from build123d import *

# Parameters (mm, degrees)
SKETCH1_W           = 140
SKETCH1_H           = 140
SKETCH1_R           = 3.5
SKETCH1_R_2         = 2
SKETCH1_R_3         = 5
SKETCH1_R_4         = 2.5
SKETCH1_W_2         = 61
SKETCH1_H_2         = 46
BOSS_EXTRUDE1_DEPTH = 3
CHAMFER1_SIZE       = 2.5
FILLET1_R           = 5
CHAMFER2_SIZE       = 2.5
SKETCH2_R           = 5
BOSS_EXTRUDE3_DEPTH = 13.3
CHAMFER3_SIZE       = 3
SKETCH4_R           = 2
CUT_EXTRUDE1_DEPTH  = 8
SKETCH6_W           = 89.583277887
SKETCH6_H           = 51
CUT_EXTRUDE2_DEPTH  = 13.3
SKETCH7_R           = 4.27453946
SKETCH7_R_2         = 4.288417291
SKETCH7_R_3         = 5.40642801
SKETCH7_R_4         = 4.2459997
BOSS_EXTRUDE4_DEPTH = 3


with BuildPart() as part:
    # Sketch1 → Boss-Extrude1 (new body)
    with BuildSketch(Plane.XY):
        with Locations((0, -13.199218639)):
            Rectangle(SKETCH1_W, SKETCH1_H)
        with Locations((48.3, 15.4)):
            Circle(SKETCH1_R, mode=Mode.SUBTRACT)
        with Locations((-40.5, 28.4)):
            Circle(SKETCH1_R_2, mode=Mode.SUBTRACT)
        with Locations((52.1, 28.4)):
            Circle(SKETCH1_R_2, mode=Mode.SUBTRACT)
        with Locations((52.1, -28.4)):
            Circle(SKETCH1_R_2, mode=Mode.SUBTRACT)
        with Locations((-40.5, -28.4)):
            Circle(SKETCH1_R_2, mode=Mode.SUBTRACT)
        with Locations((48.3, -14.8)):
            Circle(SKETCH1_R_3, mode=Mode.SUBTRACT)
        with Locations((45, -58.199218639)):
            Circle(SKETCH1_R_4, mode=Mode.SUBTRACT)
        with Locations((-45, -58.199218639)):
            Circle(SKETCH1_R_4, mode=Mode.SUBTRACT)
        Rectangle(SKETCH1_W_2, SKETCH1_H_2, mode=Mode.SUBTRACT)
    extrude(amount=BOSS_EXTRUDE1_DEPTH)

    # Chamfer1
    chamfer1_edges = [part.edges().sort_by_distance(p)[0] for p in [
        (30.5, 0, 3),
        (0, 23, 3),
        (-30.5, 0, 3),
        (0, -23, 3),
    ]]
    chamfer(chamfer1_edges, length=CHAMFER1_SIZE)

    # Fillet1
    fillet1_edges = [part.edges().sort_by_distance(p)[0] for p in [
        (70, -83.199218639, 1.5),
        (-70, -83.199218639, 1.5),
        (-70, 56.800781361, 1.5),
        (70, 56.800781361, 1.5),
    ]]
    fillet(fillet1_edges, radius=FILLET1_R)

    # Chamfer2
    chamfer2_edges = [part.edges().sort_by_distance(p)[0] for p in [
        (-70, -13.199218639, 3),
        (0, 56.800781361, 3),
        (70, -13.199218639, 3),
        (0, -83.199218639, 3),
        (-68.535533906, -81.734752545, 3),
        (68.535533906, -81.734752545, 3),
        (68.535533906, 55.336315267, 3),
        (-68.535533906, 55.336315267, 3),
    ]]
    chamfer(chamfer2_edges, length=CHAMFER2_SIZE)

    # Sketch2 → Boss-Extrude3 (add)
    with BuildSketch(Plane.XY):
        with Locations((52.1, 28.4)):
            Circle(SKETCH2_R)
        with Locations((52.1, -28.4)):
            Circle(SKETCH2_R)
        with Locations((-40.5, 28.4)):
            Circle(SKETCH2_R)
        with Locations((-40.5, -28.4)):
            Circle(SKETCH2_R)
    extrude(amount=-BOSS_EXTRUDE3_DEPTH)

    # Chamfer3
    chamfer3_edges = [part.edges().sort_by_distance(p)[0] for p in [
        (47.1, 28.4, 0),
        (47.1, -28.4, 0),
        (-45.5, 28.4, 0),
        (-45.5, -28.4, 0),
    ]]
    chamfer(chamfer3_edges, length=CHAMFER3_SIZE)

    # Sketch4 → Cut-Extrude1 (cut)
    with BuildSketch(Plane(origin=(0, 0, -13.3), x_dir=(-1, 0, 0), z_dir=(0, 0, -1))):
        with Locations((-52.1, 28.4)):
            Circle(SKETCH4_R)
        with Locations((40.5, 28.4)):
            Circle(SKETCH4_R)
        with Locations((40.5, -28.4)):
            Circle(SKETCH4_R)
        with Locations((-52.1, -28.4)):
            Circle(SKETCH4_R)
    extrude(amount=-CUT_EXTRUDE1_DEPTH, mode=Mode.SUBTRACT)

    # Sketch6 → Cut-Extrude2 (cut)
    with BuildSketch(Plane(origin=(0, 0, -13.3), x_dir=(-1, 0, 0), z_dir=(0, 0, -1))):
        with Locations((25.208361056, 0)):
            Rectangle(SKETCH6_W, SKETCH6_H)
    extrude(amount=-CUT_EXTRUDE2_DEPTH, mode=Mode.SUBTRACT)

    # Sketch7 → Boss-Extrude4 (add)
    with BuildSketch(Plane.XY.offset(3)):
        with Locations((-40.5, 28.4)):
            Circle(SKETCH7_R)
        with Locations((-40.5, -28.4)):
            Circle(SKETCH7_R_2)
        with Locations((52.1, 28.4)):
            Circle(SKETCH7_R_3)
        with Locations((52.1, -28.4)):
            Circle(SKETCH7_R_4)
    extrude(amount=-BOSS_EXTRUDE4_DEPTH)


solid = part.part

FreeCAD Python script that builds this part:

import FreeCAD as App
import Part
import Sketcher

V = App.Vector


def edges_at(feature, points):
    """Names of the edges that pass closest to the given points."""
    edges = feature.Shape.Edges
    near = lambda p: min(range(len(edges)), key=lambda i: edges[i].distToShape(Part.Vertex(*p))[0])
    return sorted({f"Edge{near(p) + 1}" for p in points})


def add_polygon(sketch, points):
    """Adds a closed chain of lines whose ends are joined by coincident constraints."""
    first, n = sketch.GeometryCount, len(points)
    for a, b in zip(points, points[1:] + points[:1]):
        sketch.addGeometry(Part.LineSegment(App.Vector(*a, 0), App.Vector(*b, 0)), False)
    for i in range(n):
        sketch.addConstraint(Sketcher.Constraint("Coincident", first + i, 2, first + (i + 1) % n, 1))

doc = App.newDocument("Part")
body = doc.addObject("PartDesign::Body", "Body")

sketch1 = body.newObject("Sketcher::SketchObject", "Sketch")
sketch1.AttachmentSupport = (doc.getObject("XY_Plane"), [""])
sketch1.MapMode = "FlatFace"
add_polygon(sketch1, [(-70, 56.8), (-70, -83.2), (70, -83.2), (70, 56.8)])
sketch1.addGeometry(Part.Circle(V(-45, -58.2, 0), V(0, 0, 1), 2.5), False)
sketch1.addGeometry(Part.Circle(V(-40.5, -28.4, 0), V(0, 0, 1), 2), False)
sketch1.addGeometry(Part.Circle(V(45, -58.2, 0), V(0, 0, 1), 2.5), False)
sketch1.addGeometry(Part.Circle(V(52.1, -28.4, 0), V(0, 0, 1), 2), False)
add_polygon(sketch1, [(30.5, -23), (-30.5, -23), (-30.5, 23), (30.5, 23)])
sketch1.addGeometry(Part.Circle(V(-40.5, 28.4, 0), V(0, 0, 1), 2), False)
sketch1.addGeometry(Part.Circle(V(48.3, -14.8, 0), V(0, 0, 1), 5), False)
sketch1.addGeometry(Part.Circle(V(48.3, 15.4, 0), V(0, 0, 1), 3.5), False)
sketch1.addGeometry(Part.Circle(V(52.1, 28.4, 0), V(0, 0, 1), 2), False)
sketch1.addConstraint(Sketcher.Constraint("Vertical", 0))
sketch1.addConstraint(Sketcher.Constraint("Horizontal", 1))
sketch1.addConstraint(Sketcher.Constraint("Vertical", 2))
sketch1.addConstraint(Sketcher.Constraint("Horizontal", 3))
sketch1.addConstraint(Sketcher.Constraint("Horizontal", 8))
sketch1.addConstraint(Sketcher.Constraint("Vertical", 9))
sketch1.addConstraint(Sketcher.Constraint("Horizontal", 10))
sketch1.addConstraint(Sketcher.Constraint("Vertical", 11))
sketch1.addConstraint(Sketcher.Constraint("Equal", 4, 6))
sketch1.addConstraint(Sketcher.Constraint("Equal", 5, 7))
sketch1.addConstraint(Sketcher.Constraint("Equal", 7, 12))
sketch1.addConstraint(Sketcher.Constraint("Equal", 12, 15))
sketch1.addConstraint(Sketcher.Constraint("Symmetric", 8, 2, 10, 2, -1, 1))
sketch1.addConstraint(Sketcher.Constraint("Symmetric", 4, 3, 6, 3, -2))
sketch1.addConstraint(Sketcher.Constraint("Symmetric", 5, 3, 12, 3, -1))
sketch1.addConstraint(Sketcher.Constraint("Symmetric", 7, 3, 15, 3, -1))
sketch1.addConstraint(Sketcher.Constraint("Horizontal", 5, 3, 7, 3))
sketch1.addConstraint(Sketcher.Constraint("Vertical", 13, 3, 14, 3))
sketch1.addConstraint(Sketcher.Constraint("Equal", 3, 0))
sketch1.addConstraint(Sketcher.Constraint("Diameter", 4, 5.0))
sketch1.addConstraint(Sketcher.Constraint("Diameter", 5, 4.0))
sketch1.addConstraint(Sketcher.Constraint("Diameter", 13, 10.0))
sketch1.addConstraint(Sketcher.Constraint("Diameter", 14, 7.0))
sketch1.addConstraint(Sketcher.Constraint("DistanceX", 1, 1, 1, 2, 140.0))
sketch1.addConstraint(Sketcher.Constraint("DistanceX", 8, 2, 8, 1, 61.0))
sketch1.addConstraint(Sketcher.Constraint("DistanceY", 9, 1, 9, 2, 46.0))
sketch1.addConstraint(Sketcher.Constraint("DistanceX", 4, 3, -1, 1, 45.0))
sketch1.addConstraint(Sketcher.Constraint("DistanceX", 0, 2, -1, 1, 70.0))
sketch1.addConstraint(Sketcher.Constraint("DistanceY", 14, 3, 12, 3, 13.0))
sketch1.addConstraint(Sketcher.Constraint("DistanceY", 0, 2, 4, 3, 25.0))
sketch1.addConstraint(Sketcher.Constraint("DistanceX", 5, 3, 8, 2, 10.0))
sketch1.addConstraint(Sketcher.Constraint("DistanceY", 5, 3, -1, 1, 28.4))
sketch1.addConstraint(Sketcher.Constraint("DistanceX", -1, 1, 7, 3, 52.1))
sketch1.addConstraint(Sketcher.Constraint("DistanceX", -1, 1, 13, 3, 48.3))
sketch1.addConstraint(Sketcher.Constraint("DistanceY", 13, 3, -1, 1, 14.8))
sketch1.addConstraint(Sketcher.Constraint("DistanceY", 4, 3, -1, 1, 58.199219))
pad1 = body.newObject("PartDesign::Pad", "Pad")
pad1.Profile = sketch1
pad1.Length = 3
doc.recompute()

chamfer = body.newObject("PartDesign::Chamfer", "Chamfer")
chamfer.Base = (pad1, edges_at(pad1, [
    (30.5, 0, 3),
    (0, 23, 3),
    (-30.5, 0, 3),
    (0, -23, 3),
]))
chamfer.Size = 2.5
doc.recompute()

fillet = body.newObject("PartDesign::Fillet", "Fillet")
fillet.Base = (chamfer, edges_at(chamfer, [
    (70, -83.199, 1.5),
    (-70, -83.199, 1.5),
    (-70, 56.801, 1.5),
    (70, 56.801, 1.5),
]))
fillet.Radius = 5
doc.recompute()

chamfer2 = body.newObject("PartDesign::Chamfer", "Chamfer001")
chamfer2.Base = (fillet, edges_at(fillet, [
    (-70, -13.199, 3),
    (0, 56.801, 3),
    (70, -13.199, 3),
    (0, -83.199, 3),
    (-68.536, -81.735, 3),
    (68.536, -81.735, 3),
    (68.536, 55.336, 3),
    (-68.536, 55.336, 3),
]))
chamfer2.Size = 2.5

sketch2 = body.newObject("Sketcher::SketchObject", "Sketch001")
sketch2.AttachmentSupport = (doc.getObject("XY_Plane"), [""])
sketch2.MapMode = "FlatFace"
sketch2.addGeometry(Part.Circle(V(52, 28, 0), V(0, 0, 1), 5), False)
sketch2.addGeometry(Part.Circle(V(52, -28, 0), V(0, 0, 1), 5), False)
sketch2.addGeometry(Part.Circle(V(-40, 28, 0), V(0, 0, 1), 5), False)
sketch2.addGeometry(Part.Circle(V(-40, -28, 0), V(0, 0, 1), 5), False)
sketch2.addConstraint(Sketcher.Constraint("Equal", 0, 1))
sketch2.addConstraint(Sketcher.Constraint("Equal", 1, 2))
sketch2.addConstraint(Sketcher.Constraint("Equal", 2, 3))
sketch2.addConstraint(Sketcher.Constraint("Symmetric", 0, 3, 1, 3, -1))
sketch2.addConstraint(Sketcher.Constraint("Symmetric", 2, 3, 3, 3, -1))
sketch2.addConstraint(Sketcher.Constraint("Horizontal", 0, 3, 2, 3))
sketch2.addConstraint(Sketcher.Constraint("Diameter", 0, 10.0))
sketch2.addConstraint(Sketcher.Constraint("DistanceX", -1, 1, 0, 3, 52.1))
sketch2.addConstraint(Sketcher.Constraint("DistanceY", -1, 1, 0, 3, 28.4))
sketch2.addConstraint(Sketcher.Constraint("DistanceX", 2, 3, -1, 1, 40.5))
pad2 = body.newObject("PartDesign::Pad", "Pad001")
pad2.Profile = sketch2
pad2.Length = 13.3
pad2.Reversed = True
doc.recompute()

chamfer3 = body.newObject("PartDesign::Chamfer", "Chamfer002")
chamfer3.Base = (pad2, edges_at(pad2, [
    (47.1, 28.4, 0),
    (47.1, -28.4, 0),
    (-45.5, 28.4, 0),
    (-45.5, -28.4, 0),
]))
chamfer3.Size = 3

sketch3 = body.newObject("Sketcher::SketchObject", "Sketch002")
sketch3.AttachmentSupport = (doc.getObject("XY_Plane"), [""])
sketch3.MapMode = "FlatFace"
sketch3.AttachmentOffset = App.Placement(V(0, 0, -13.3), App.Rotation())
sketch3.addGeometry(Part.Circle(V(52.1, 28.4, 0), V(0, 0, 1), 2), False)
sketch3.addGeometry(Part.Circle(V(-40.5, 28.4, 0), V(0, 0, 1), 2), False)
sketch3.addGeometry(Part.Circle(V(-40.5, -28.4, 0), V(0, 0, 1), 2), False)
sketch3.addGeometry(Part.Circle(V(52.1, -28.4, 0), V(0, 0, 1), 2), False)
sketch3.addConstraint(Sketcher.Constraint("Equal", 0, 1))
sketch3.addConstraint(Sketcher.Constraint("Equal", 1, 2))
sketch3.addConstraint(Sketcher.Constraint("Equal", 2, 3))
sketch3.addConstraint(Sketcher.Constraint("Symmetric", 1, 3, 2, 3, -1))
sketch3.addConstraint(Sketcher.Constraint("Symmetric", 0, 3, 3, 3, -1))
sketch3.addConstraint(Sketcher.Constraint("Horizontal", 0, 3, 1, 3))
sketch3.addConstraint(Sketcher.Constraint("Diameter", 0, 4.0))
sketch3.addConstraint(Sketcher.Constraint("DistanceX", -1, 1, 0, 3, 52.1))
sketch3.addConstraint(Sketcher.Constraint("DistanceY", -1, 1, 0, 3, 28.4))
sketch3.addConstraint(Sketcher.Constraint("DistanceX", 1, 3, -1, 1, 40.5))
pocket1 = body.newObject("PartDesign::Pocket", "Pocket")
pocket1.Profile = sketch3
pocket1.Length = 8
pocket1.Reversed = True

sketch4 = body.newObject("Sketcher::SketchObject", "Sketch003")
sketch4.AttachmentSupport = (doc.getObject("XY_Plane"), [""])
sketch4.MapMode = "FlatFace"
sketch4.AttachmentOffset = App.Placement(V(0, 0, -13.3), App.Rotation())
add_polygon(sketch4, [(20, 26), (20, -26), (-70, -26), (-70, 26)])
sketch4.addConstraint(Sketcher.Constraint("Vertical", 0))
sketch4.addConstraint(Sketcher.Constraint("Horizontal", 1))
sketch4.addConstraint(Sketcher.Constraint("Vertical", 2))
sketch4.addConstraint(Sketcher.Constraint("Horizontal", 3))
sketch4.addConstraint(Sketcher.Constraint("DistanceY", 0, 2, 0, 1, 51.0))
sketch4.addConstraint(Sketcher.Constraint("DistanceX", 1, 2, -1, 1, 70.0))
sketch4.addConstraint(Sketcher.Constraint("DistanceY", 0, 2, -1, 1, 25.5))
sketch4.addConstraint(Sketcher.Constraint("DistanceX", 1, 2, 1, 1, 89.583278))
pocket2 = body.newObject("PartDesign::Pocket", "Pocket001")
pocket2.Profile = sketch4
pocket2.Length = 13.3
pocket2.Reversed = True

sketch5 = body.newObject("Sketcher::SketchObject", "Sketch004")
sketch5.AttachmentSupport = (doc.getObject("XY_Plane"), [""])
sketch5.MapMode = "FlatFace"
sketch5.AttachmentOffset = App.Placement(V(0, 0, 3), App.Rotation())
sketch5.addGeometry(Part.Circle(V(-40.5, 28.4, 0), V(0, 0, 1), 4.3), False)
sketch5.addGeometry(Part.Circle(V(-40.5, -28.4, 0), V(0, 0, 1), 4.3), False)
sketch5.addGeometry(Part.Circle(V(52.1, 28.4, 0), V(0, 0, 1), 5.4), False)
sketch5.addGeometry(Part.Circle(V(52.1, -28.4, 0), V(0, 0, 1), 4.2), False)
sketch5.addConstraint(Sketcher.Constraint("Symmetric", 0, 3, 1, 3, -1))
sketch5.addConstraint(Sketcher.Constraint("Symmetric", 2, 3, 3, 3, -1))
sketch5.addConstraint(Sketcher.Constraint("Horizontal", 0, 3, 2, 3))
sketch5.addConstraint(Sketcher.Constraint("Diameter", 3, 8.491999))
sketch5.addConstraint(Sketcher.Constraint("DistanceX", 0, 3, -1, 1, 40.5))
sketch5.addConstraint(Sketcher.Constraint("DistanceY", -1, 1, 0, 3, 28.4))
sketch5.addConstraint(Sketcher.Constraint("DistanceX", -1, 1, 2, 3, 52.1))
sketch5.addConstraint(Sketcher.Constraint("Diameter", 0, 8.549079))
sketch5.addConstraint(Sketcher.Constraint("Diameter", 1, 8.576835))
sketch5.addConstraint(Sketcher.Constraint("Diameter", 2, 10.812856))
pad3 = body.newObject("PartDesign::Pad", "Pad002")
pad3.Profile = sketch5
pad3.Length = 3
pad3.Reversed = True

doc.recompute()
